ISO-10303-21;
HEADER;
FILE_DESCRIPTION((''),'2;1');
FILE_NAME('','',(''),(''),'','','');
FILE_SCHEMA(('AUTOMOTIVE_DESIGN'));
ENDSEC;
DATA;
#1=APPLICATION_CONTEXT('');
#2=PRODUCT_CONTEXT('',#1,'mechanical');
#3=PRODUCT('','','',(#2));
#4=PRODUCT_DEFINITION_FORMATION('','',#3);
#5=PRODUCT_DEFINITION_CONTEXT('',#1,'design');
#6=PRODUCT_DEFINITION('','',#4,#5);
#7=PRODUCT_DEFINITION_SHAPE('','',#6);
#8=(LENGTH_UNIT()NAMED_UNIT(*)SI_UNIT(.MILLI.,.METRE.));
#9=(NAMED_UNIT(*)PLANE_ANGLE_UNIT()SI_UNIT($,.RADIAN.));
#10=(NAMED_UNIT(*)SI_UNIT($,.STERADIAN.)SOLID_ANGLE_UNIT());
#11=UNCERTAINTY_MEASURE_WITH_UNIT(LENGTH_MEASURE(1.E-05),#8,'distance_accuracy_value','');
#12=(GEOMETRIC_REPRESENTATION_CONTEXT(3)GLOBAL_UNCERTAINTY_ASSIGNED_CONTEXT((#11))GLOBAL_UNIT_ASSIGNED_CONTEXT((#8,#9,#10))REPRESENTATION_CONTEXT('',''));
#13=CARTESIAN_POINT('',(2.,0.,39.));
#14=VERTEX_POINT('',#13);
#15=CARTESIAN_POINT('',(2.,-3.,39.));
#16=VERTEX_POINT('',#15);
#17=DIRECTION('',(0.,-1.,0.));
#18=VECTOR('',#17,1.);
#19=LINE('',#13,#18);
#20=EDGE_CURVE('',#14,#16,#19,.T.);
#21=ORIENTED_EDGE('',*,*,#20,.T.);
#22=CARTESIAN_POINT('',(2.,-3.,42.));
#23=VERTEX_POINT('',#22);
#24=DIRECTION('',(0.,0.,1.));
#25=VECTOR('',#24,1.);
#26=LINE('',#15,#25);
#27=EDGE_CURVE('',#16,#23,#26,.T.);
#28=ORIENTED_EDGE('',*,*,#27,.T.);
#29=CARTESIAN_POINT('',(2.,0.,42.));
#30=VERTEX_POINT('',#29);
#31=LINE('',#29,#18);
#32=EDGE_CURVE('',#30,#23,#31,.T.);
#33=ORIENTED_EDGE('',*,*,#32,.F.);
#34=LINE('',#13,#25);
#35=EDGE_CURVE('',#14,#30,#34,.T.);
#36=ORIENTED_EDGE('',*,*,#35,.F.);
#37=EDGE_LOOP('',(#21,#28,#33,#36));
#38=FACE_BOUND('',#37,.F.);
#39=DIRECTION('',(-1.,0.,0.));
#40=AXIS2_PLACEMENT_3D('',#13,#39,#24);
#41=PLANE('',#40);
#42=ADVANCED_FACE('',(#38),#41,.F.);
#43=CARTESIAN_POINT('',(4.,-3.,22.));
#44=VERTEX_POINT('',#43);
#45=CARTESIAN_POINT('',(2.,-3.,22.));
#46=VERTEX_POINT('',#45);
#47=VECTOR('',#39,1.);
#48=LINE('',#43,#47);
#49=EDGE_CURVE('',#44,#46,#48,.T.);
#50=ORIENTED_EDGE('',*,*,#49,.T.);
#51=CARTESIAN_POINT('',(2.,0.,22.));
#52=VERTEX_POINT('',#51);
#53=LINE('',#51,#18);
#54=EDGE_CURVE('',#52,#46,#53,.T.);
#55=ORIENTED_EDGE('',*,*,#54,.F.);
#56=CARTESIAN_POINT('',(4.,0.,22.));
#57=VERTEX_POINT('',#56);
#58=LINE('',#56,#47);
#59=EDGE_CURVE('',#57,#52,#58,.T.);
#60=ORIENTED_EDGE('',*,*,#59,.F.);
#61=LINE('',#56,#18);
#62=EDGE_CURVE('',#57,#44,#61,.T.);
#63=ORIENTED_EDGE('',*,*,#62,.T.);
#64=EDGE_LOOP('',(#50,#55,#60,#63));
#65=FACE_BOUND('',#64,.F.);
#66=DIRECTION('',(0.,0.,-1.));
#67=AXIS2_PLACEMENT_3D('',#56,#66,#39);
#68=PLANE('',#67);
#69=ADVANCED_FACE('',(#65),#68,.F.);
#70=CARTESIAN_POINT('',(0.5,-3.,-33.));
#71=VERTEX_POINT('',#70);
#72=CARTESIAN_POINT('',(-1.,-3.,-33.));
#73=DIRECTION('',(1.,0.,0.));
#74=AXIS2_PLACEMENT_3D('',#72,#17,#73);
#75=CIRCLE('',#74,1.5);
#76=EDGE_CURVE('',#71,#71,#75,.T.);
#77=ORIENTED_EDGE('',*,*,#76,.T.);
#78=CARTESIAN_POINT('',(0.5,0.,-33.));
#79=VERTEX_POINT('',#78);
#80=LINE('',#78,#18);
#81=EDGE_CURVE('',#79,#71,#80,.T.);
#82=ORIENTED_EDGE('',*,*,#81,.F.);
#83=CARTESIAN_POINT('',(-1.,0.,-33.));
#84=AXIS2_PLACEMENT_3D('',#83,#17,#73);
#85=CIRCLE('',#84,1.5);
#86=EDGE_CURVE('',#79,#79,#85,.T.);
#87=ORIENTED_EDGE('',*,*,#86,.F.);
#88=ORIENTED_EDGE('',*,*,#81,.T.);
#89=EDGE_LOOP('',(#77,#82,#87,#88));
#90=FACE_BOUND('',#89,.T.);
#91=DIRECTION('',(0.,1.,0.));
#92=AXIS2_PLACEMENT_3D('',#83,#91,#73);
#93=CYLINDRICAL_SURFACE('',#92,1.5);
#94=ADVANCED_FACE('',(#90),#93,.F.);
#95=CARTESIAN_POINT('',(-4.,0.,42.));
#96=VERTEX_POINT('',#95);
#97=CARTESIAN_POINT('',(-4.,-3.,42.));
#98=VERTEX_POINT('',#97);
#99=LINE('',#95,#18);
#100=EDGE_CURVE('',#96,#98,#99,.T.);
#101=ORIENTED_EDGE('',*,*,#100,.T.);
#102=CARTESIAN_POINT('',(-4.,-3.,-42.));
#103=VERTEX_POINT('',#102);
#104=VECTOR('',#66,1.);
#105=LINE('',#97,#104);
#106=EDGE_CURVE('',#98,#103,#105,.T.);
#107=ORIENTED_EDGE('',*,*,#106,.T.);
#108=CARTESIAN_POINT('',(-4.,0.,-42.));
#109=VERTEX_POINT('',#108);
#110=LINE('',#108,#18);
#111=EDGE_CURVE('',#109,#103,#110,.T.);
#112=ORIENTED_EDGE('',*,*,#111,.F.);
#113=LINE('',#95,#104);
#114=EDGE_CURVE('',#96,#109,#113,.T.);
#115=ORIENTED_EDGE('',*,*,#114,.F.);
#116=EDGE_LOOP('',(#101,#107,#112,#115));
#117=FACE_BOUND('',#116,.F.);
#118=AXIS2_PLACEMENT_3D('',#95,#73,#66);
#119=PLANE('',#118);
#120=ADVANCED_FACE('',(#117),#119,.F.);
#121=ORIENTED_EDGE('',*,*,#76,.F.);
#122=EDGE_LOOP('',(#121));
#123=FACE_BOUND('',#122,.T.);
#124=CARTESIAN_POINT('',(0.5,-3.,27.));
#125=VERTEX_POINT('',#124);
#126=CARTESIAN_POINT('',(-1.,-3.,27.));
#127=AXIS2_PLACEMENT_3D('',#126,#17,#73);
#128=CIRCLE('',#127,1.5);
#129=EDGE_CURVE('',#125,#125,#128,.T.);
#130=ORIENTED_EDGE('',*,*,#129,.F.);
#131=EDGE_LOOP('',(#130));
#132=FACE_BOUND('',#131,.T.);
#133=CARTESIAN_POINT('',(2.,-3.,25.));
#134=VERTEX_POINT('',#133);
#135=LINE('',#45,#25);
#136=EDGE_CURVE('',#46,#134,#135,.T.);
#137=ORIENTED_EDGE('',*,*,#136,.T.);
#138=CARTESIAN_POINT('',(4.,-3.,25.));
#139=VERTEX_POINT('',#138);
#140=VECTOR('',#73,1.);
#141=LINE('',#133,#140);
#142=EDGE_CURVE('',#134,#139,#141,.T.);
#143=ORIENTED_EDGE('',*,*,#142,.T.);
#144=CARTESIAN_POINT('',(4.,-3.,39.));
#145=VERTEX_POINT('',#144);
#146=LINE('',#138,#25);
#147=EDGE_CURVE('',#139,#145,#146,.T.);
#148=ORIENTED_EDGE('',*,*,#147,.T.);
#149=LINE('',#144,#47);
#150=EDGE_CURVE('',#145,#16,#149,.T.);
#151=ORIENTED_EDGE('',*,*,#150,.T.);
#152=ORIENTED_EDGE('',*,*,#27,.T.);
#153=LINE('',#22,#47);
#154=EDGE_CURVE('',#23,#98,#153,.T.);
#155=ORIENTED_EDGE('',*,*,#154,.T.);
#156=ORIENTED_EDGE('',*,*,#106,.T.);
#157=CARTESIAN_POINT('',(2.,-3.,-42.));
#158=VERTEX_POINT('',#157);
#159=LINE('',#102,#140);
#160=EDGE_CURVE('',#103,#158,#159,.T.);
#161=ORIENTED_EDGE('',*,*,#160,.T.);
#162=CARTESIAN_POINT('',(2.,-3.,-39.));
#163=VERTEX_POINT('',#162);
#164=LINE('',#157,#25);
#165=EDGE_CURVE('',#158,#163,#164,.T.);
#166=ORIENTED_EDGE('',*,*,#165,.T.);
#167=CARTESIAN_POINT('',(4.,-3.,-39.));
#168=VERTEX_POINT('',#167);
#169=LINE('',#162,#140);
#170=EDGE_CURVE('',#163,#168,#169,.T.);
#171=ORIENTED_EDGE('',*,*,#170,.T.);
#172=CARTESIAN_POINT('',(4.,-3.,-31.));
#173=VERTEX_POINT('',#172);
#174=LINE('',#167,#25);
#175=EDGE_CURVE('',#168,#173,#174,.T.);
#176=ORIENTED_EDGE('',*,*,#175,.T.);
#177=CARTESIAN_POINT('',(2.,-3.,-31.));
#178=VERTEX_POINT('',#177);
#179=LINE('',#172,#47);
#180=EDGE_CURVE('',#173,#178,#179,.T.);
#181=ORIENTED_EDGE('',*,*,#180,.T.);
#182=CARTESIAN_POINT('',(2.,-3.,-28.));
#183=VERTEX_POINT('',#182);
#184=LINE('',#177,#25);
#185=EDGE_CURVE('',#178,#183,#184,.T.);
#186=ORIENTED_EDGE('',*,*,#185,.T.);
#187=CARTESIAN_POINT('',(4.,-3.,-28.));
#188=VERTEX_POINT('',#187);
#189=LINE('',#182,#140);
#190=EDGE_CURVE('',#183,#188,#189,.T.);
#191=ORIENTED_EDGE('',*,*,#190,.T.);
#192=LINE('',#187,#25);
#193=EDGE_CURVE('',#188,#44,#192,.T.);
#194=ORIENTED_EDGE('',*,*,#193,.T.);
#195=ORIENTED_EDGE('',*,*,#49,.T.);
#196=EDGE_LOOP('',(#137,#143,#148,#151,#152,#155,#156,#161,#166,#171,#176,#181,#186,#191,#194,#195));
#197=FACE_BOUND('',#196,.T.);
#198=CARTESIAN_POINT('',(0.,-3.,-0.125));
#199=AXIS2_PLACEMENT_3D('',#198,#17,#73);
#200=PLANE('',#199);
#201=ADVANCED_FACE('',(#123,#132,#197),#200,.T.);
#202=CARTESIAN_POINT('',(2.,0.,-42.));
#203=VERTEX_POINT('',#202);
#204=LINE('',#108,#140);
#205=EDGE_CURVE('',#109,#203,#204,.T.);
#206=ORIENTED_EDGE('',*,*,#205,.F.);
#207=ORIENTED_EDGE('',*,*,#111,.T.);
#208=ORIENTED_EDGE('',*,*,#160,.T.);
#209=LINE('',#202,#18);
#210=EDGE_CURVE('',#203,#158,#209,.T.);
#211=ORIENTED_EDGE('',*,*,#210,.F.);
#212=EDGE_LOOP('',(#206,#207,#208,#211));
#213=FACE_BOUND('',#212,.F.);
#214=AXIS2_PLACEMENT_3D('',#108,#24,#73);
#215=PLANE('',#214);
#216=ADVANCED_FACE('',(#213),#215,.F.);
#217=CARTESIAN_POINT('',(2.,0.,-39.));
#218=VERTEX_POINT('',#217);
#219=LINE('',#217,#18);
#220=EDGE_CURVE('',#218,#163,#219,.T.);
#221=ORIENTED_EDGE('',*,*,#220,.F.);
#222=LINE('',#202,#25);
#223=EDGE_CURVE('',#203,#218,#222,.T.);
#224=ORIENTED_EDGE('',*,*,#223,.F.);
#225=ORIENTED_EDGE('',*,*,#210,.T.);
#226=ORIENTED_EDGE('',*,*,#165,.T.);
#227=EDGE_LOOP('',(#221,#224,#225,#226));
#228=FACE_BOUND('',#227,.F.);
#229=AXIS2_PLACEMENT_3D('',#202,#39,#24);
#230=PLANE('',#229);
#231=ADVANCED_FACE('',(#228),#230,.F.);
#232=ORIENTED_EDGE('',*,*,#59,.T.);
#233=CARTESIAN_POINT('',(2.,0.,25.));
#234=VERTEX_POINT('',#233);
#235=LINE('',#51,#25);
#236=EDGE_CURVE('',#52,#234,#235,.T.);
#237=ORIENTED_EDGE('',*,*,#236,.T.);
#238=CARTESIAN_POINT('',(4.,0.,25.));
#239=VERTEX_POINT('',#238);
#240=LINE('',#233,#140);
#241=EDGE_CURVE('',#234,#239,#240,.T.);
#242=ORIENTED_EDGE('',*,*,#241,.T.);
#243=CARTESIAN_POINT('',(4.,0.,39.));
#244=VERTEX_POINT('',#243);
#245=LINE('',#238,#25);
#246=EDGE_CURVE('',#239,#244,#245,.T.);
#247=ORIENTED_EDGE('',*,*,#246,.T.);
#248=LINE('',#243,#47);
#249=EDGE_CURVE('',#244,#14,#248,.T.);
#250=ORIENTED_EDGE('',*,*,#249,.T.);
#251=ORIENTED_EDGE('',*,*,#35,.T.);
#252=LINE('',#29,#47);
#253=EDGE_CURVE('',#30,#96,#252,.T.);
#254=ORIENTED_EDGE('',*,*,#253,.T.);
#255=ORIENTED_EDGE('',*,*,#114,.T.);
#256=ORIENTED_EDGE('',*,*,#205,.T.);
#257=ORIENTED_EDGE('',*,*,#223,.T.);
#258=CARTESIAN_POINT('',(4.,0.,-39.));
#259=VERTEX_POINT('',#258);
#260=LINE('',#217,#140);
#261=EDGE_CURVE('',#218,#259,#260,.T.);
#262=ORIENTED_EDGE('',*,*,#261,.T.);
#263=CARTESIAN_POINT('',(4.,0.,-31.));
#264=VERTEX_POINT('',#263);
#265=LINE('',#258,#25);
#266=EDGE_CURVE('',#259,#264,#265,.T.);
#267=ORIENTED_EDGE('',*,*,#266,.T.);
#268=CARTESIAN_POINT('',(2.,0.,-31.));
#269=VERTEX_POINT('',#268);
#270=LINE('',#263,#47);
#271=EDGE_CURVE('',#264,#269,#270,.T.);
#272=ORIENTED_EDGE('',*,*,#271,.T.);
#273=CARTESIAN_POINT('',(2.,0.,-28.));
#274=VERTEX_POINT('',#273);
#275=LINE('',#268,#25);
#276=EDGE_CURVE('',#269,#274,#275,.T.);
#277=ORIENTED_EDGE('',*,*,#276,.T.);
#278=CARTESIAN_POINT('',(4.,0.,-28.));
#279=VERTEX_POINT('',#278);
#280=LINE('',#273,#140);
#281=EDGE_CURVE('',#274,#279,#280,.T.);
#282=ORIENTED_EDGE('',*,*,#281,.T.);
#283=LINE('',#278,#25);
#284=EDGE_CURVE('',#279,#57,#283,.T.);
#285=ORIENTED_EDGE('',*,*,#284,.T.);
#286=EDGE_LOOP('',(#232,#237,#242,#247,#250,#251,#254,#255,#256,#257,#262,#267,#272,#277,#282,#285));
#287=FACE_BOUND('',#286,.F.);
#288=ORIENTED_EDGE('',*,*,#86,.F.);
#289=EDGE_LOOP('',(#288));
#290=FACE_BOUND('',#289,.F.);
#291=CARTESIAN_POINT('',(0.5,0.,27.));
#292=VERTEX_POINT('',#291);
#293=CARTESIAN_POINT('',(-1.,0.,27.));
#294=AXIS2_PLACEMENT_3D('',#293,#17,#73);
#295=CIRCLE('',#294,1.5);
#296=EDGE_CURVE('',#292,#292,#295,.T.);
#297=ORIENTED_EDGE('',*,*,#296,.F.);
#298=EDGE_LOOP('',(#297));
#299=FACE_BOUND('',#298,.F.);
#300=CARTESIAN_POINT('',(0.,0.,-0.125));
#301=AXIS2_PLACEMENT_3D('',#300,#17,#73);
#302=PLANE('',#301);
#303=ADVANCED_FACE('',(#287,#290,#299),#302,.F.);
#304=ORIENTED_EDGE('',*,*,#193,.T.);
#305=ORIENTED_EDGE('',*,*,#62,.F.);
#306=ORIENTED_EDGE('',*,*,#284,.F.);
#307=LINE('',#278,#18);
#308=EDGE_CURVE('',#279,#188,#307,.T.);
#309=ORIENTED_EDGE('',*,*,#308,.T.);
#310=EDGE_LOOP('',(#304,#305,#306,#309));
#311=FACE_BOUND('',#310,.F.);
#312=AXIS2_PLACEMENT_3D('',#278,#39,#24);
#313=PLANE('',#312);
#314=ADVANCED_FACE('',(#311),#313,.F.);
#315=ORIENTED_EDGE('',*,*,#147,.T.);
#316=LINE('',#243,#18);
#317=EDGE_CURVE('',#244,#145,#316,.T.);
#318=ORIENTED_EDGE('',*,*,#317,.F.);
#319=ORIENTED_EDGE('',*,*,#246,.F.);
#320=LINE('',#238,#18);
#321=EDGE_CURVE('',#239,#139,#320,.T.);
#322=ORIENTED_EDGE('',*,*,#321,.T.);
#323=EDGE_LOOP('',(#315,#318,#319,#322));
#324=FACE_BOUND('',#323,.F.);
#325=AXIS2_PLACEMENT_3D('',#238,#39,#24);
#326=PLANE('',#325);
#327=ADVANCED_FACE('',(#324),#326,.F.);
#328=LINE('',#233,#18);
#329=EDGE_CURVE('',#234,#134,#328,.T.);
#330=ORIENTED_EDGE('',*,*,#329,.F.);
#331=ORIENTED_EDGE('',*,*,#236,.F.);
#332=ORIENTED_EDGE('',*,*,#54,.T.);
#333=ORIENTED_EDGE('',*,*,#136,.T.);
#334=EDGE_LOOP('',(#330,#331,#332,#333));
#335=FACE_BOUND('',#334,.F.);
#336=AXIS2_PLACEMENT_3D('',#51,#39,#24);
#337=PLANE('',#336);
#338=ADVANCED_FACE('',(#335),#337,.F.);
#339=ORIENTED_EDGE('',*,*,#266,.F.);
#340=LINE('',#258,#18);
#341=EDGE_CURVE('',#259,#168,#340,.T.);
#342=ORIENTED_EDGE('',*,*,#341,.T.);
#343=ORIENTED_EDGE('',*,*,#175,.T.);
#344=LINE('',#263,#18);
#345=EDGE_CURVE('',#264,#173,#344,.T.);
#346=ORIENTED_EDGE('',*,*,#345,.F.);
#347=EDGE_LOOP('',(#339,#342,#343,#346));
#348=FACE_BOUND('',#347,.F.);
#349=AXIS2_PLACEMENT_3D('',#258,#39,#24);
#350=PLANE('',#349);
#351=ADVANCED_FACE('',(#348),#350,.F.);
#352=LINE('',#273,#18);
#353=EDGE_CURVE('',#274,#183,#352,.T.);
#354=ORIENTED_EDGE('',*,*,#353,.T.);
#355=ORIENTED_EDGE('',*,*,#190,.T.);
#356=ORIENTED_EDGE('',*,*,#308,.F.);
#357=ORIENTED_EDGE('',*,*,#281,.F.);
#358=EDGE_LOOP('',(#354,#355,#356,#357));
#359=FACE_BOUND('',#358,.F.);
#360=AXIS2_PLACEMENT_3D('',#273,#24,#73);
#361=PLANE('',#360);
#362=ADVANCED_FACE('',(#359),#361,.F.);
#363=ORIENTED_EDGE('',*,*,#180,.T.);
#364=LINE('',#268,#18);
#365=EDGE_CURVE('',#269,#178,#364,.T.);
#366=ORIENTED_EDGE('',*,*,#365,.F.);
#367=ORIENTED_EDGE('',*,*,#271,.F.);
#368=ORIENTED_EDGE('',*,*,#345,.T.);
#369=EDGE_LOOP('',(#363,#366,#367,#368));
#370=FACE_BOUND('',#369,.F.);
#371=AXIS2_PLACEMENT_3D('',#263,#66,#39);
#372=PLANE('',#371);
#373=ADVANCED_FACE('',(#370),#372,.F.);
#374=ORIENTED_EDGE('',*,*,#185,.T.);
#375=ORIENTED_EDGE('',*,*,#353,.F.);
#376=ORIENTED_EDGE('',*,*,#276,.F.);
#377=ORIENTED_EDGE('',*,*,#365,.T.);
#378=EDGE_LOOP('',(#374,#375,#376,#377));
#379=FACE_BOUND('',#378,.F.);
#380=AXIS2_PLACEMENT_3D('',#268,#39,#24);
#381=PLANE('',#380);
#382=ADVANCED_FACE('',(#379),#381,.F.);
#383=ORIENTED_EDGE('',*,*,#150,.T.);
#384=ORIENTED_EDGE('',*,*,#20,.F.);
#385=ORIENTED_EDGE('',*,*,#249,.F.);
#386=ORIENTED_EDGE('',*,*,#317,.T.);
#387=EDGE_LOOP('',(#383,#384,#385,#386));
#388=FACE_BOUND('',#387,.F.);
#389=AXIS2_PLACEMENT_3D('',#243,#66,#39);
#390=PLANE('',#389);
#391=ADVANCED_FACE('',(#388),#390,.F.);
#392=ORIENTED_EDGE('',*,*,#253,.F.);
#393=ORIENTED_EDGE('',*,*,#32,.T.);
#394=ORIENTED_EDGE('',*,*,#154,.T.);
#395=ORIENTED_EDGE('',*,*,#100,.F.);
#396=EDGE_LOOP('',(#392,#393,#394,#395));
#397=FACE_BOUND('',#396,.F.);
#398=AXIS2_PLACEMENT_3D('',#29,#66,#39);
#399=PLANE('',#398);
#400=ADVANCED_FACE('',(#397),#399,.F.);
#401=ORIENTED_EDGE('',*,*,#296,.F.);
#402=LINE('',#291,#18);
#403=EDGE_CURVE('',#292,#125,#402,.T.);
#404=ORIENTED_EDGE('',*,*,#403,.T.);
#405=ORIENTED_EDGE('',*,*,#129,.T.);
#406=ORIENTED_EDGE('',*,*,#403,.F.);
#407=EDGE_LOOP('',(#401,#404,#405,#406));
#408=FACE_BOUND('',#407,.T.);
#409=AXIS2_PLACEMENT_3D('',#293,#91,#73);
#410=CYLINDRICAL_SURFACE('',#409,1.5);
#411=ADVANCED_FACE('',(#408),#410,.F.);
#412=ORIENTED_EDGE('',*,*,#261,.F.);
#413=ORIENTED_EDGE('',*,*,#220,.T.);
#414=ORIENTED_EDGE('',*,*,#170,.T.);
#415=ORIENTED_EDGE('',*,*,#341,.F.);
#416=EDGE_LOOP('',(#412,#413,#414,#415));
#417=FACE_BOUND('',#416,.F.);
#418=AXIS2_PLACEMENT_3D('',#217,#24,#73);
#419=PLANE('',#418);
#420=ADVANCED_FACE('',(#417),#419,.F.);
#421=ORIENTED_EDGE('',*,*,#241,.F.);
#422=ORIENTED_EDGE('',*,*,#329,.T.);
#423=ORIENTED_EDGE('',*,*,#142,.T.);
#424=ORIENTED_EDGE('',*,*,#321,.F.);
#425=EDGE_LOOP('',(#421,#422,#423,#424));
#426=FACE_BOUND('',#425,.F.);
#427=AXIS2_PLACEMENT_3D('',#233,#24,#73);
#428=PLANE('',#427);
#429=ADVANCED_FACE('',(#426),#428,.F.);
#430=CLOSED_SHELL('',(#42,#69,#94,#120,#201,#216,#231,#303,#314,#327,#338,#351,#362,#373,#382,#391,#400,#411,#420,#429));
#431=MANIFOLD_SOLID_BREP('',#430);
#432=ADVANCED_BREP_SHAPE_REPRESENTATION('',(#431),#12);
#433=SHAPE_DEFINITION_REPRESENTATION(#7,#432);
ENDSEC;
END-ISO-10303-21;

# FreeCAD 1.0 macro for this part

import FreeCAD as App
import Part
import Sketcher
Q = App.Units.Quantity

doc = App.newDocument("Part")
body = doc.addObject("PartDesign::Body", "Body")

# Sketch on XZ plane
sketch1 = body.newObject("Sketcher::SketchObject", "Sketch")
sketch1.AttachmentSupport = (doc.getObject("XZ_Plane"), [""])
sketch1.MapMode = "FlatFace"
sketch1.addGeometry(Part.LineSegment(App.Vector(2, 39, 0), App.Vector(2, 42, 0)), False)
sketch1.addGeometry(Part.LineSegment(App.Vector(2, 42, 0), App.Vector(-4, 42, 0)), False)
sketch1.addGeometry(Part.LineSegment(App.Vector(-4, 42, 0), App.Vector(-4, -42, 0)), False)
sketch1.addGeometry(Part.LineSegment(App.Vector(-4, -42, 0), App.Vector(2, -42, 0)), False)
sketch1.addGeometry(Part.LineSegment(App.Vector(2, -42, 0), App.Vector(2, -39, 0)), False)
sketch1.addGeometry(Part.LineSegment(App.Vector(2, -39, 0), App.Vector(4, -39, 0)), False)
sketch1.addGeometry(Part.LineSegment(App.Vector(4, -39, 0), App.Vector(4, -31, 0)), False)
sketch1.addGeometry(Part.LineSegment(App.Vector(4, -31, 0), App.Vector(2, -31, 0)), False)
sketch1.addGeometry(Part.LineSegment(App.Vector(2, -31, 0), App.Vector(2, -28, 0)), False)
sketch1.addGeometry(Part.LineSegment(App.Vector(2, -28, 0), App.Vector(4, -28, 0)), False)
sketch1.addGeometry(Part.LineSegment(App.Vector(4, -28, 0), App.Vector(4, 22, 0)), False)
sketch1.addGeometry(Part.LineSegment(App.Vector(4, 22, 0), App.Vector(2, 22, 0)), False)
sketch1.addGeometry(Part.LineSegment(App.Vector(2, 22, 0), App.Vector(2, 25, 0)), False)
sketch1.addGeometry(Part.LineSegment(App.Vector(2, 25, 0), App.Vector(4, 25, 0)), False)
sketch1.addGeometry(Part.LineSegment(App.Vector(4, 25, 0), App.Vector(4, 39, 0)), False)
sketch1.addGeometry(Part.LineSegment(App.Vector(4, 39, 0), App.Vector(2, 39, 0)), False)
sketch1.addGeometry(Part.Circle(App.Vector(-1, -33, 0), App.Vector(0, 0, 1), 1.5), False)
sketch1.addGeometry(Part.Circle(App.Vector(-1, 27, 0), App.Vector(0, 0, 1), 1.5), False)
sketch1.addConstraint(Sketcher.Constraint("Coincident", 0, 2, 1, 1))
sketch1.addConstraint(Sketcher.Constraint("Coincident", 1, 2, 2, 1))
sketch1.addConstraint(Sketcher.Constraint("Coincident", 2, 2, 3, 1))
sketch1.addConstraint(Sketcher.Constraint("Coincident", 3, 2, 4, 1))
sketch1.addConstraint(Sketcher.Constraint("Coincident", 4, 2, 5, 1))
sketch1.addConstraint(Sketcher.Constraint("Coincident", 5, 2, 6, 1))
sketch1.addConstraint(Sketcher.Constraint("Coincident", 6, 2, 7, 1))
sketch1.addConstraint(Sketcher.Constraint("Coincident", 7, 2, 8, 1))
sketch1.addConstraint(Sketcher.Constraint("Coincident", 8, 2, 9, 1))
sketch1.addConstraint(Sketcher.Constraint("Coincident", 9, 2, 10, 1))
sketch1.addConstraint(Sketcher.Constraint("Coincident", 10, 2, 11, 1))
sketch1.addConstraint(Sketcher.Constraint("Coincident", 11, 2, 12, 1))
sketch1.addConstraint(Sketcher.Constraint("Coincident", 12, 2, 13, 1))
sketch1.addConstraint(Sketcher.Constraint("Coincident", 13, 2, 14, 1))
sketch1.addConstraint(Sketcher.Constraint("Coincident", 14, 2, 15, 1))
sketch1.addConstraint(Sketcher.Constraint("Coincident", 15, 2, 0, 1))
sketch1.addConstraint(Sketcher.Constraint("Vertical", 0))
sketch1.addConstraint(Sketcher.Constraint("Horizontal", 1))
sketch1.addConstraint(Sketcher.Constraint("Vertical", 2))
sketch1.addConstraint(Sketcher.Constraint("Horizontal", 3))
sketch1.addConstraint(Sketcher.Constraint("Vertical", 4))
sketch1.addConstraint(Sketcher.Constraint("Horizontal", 5))
sketch1.addConstraint(Sketcher.Constraint("Vertical", 6))
sketch1.addConstraint(Sketcher.Constraint("Horizontal", 7))
sketch1.addConstraint(Sketcher.Constraint("Vertical", 8))
sketch1.addConstraint(Sketcher.Constraint("Horizontal", 9))
sketch1.addConstraint(Sketcher.Constraint("Vertical", 10))
sketch1.addConstraint(Sketcher.Constraint("Horizontal", 11))
sketch1.addConstraint(Sketcher.Constraint("Vertical", 12))
sketch1.addConstraint(Sketcher.Constraint("Horizontal", 13))
sketch1.addConstraint(Sketcher.Constraint("Vertical", 14))
sketch1.addConstraint(Sketcher.Constraint("Horizontal", 15))
sketch1.addConstraint(Sketcher.Constraint("Equal", 16, 17))
sketch1.addConstraint(Sketcher.Constraint("Symmetric", 0, 2, 3, 2, -1))
sketch1.addConstraint(Sketcher.Constraint("Symmetric", 5, 2, 14, 2, -1))
sketch1.addConstraint(Sketcher.Constraint("Vertical", 16, 3, 17, 3))
sketch1.addConstraint(Sketcher.Constraint("Vertical", 4, 2, 7, 2))
sketch1.addConstraint(Sketcher.Constraint("Vertical", 6, 2, 9, 2))
sketch1.addConstraint(Sketcher.Constraint("Vertical", 8, 2, 11, 2))
sketch1.addConstraint(Sketcher.Constraint("Equal", 4, 8))
sketch1.addConstraint(Sketcher.Constraint("Equal", 8, 12))
sketch1.addConstraint(Sketcher.Constraint("Diameter", 16, Q("3 mm")))
sketch1.addConstraint(Sketcher.Constraint("DistanceX", 1, 2, 1, 1, Q("6 mm")))
sketch1.addConstraint(Sketcher.Constraint("DistanceX", 5, 1, 5, 2, Q("2 mm")))
sketch1.addConstraint(Sketcher.Constraint("DistanceY", 0, 1, 0, 2, Q("3 mm")))
sketch1.addConstraint(Sketcher.Constraint("DistanceY", 2, 2, 2, 1, Q("84 mm")))
sketch1.addConstraint(Sketcher.Constraint("DistanceY", 6, 1, 6, 2, Q("8 mm")))
sketch1.addConstraint(Sketcher.Constraint("DistanceY", 10, 1, 10, 2, Q("50 mm")))
sketch1.addConstraint(Sketcher.Constraint("DistanceX", 16, 3, -1, 1, Q("1 mm")))
sketch1.addConstraint(Sketcher.Constraint("DistanceY", 16, 3, -1, 1, Q("33 mm")))
sketch1.addConstraint(Sketcher.Constraint("DistanceY", -1, 1, 17, 3, Q("27 mm")))
sketch1.addConstraint(Sketcher.Constraint("DistanceX", -1, 1, 0, 2, Q("2 mm")))
pad1 = body.newObject("PartDesign::Pad", "Pad")
pad1.Profile = sketch1
pad1.Length = 3

doc.recompute()
